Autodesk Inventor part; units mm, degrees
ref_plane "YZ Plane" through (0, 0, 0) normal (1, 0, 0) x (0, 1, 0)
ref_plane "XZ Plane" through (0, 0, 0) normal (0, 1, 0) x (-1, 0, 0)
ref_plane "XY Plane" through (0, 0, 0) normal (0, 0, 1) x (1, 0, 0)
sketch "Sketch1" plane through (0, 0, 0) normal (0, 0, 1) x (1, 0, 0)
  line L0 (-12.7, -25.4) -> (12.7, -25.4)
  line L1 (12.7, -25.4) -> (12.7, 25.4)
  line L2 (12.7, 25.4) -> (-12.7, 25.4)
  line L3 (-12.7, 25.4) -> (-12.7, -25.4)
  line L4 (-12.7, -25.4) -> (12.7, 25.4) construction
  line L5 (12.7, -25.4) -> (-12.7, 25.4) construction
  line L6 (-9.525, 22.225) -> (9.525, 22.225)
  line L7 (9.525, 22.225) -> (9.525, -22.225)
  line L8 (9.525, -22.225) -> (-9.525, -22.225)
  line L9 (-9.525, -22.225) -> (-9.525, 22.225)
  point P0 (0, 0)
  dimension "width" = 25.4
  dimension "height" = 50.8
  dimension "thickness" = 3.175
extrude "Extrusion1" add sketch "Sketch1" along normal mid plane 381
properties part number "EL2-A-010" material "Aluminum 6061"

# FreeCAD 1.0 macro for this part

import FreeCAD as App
import Part
import Sketcher
from FreeCAD import Vector
Q = App.Units.Quantity


def add_polygon(sketch, points):
    """Adds a closed chain of lines whose ends are joined by coincident constraints."""
    first, n = sketch.GeometryCount, len(points)
    for a, b in zip(points, points[1:] + points[:1]):
        sketch.addGeometry(Part.LineSegment(App.Vector(*a, 0), App.Vector(*b, 0)), False)
    for i in range(n):
        sketch.addConstraint(Sketcher.Constraint("Coincident", first + i, 2, first + (i + 1) % n, 1))

doc = App.newDocument("Part")
body = doc.addObject("PartDesign::Body", "Body")

# Sketch on XY plane
sketch1 = body.newObject("Sketcher::SketchObject", "Sketch")
sketch1.AttachmentSupport = (doc.getObject("XY_Plane"), [""])
sketch1.MapMode = "FlatFace"
add_polygon(sketch1, [(-13, 25), (-13, -25), (13, -25), (13, 25)])  # lines 0-3
add_polygon(sketch1, [(-10, -22), (-10, 22), (10, 22), (10, -22)])  # lines 4-7
sketch1.addConstraint([
    Sketcher.Constraint("Vertical", 0),
    Sketcher.Constraint("Horizontal", 1),
    Sketcher.Constraint("Vertical", 2),
    Sketcher.Constraint("Horizontal", 3),
    Sketcher.Constraint("Vertical", 4),
    Sketcher.Constraint("Horizontal", 5),
    Sketcher.Constraint("Vertical", 6),
    Sketcher.Constraint("Horizontal", 7),
    Sketcher.Constraint("Symmetric", 0, 2, 2, 2, -1, 1),
    Sketcher.Constraint("Symmetric", 4, 2, 6, 2, -1, 1),
    Sketcher.Constraint("DistanceX", 1, 1, 1, 2, Q("1 in")),
    Sketcher.Constraint("DistanceY", 0, 2, 0, 1, Q("2 in")),
    Sketcher.Constraint("DistanceX", 3, 2, 4, 2, Q("0.125 in")),
    Sketcher.Constraint("DistanceY", 4, 2, 3, 2, Q("0.125 in")),
])
pad1 = body.newObject("PartDesign::Pad", "Pad")
pad1.Profile = sketch1
pad1.Length = Q("15 in")
pad1.Midplane = True

doc.recompute()
